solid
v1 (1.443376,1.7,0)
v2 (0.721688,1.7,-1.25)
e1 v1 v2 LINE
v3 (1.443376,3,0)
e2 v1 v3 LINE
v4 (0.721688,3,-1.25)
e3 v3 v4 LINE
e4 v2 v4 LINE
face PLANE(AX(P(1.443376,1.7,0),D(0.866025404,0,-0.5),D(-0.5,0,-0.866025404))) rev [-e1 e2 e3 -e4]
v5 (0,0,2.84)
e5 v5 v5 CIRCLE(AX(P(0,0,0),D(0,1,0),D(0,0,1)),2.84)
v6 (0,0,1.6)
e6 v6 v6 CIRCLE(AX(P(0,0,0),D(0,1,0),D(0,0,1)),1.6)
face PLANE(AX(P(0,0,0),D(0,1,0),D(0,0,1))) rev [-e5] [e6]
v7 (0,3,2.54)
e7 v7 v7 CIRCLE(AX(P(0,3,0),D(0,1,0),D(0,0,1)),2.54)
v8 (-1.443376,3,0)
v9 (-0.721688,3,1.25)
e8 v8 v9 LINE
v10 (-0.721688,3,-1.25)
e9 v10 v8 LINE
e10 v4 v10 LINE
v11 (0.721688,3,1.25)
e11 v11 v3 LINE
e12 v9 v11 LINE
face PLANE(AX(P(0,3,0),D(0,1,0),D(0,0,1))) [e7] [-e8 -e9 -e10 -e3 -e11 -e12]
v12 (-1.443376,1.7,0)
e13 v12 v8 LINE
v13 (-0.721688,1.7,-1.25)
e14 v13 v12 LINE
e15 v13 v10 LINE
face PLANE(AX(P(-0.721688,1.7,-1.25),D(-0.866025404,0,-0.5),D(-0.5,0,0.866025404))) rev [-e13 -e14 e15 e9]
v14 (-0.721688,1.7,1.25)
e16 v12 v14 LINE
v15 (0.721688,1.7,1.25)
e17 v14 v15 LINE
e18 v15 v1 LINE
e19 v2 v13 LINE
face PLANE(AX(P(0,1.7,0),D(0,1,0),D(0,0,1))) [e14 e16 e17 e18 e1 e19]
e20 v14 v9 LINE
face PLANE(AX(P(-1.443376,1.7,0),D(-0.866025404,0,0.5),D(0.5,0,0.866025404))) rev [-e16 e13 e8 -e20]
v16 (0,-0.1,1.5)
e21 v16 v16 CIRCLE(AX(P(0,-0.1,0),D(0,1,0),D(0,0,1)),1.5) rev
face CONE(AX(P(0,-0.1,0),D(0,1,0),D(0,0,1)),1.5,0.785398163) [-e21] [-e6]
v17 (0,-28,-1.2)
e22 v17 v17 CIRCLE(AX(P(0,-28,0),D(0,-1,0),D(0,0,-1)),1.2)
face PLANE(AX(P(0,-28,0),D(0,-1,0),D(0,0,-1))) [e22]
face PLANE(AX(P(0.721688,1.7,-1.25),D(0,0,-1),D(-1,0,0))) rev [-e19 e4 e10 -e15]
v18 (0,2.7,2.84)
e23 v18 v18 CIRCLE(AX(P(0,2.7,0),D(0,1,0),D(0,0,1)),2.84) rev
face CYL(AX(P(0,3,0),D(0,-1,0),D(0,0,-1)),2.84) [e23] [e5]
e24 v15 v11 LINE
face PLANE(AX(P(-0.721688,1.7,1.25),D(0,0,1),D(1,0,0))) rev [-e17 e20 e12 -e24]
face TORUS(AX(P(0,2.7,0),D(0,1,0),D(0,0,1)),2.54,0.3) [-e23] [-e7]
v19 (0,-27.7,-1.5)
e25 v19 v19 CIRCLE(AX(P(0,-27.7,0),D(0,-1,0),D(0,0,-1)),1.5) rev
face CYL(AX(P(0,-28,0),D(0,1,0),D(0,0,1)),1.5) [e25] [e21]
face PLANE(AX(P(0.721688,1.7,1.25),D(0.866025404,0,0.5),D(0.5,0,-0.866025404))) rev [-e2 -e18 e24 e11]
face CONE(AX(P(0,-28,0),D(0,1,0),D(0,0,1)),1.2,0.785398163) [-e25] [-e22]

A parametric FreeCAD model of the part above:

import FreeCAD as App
import Part
import Sketcher
Q = App.Units.Quantity


def edges_at(feature, points):
    """Names of the edges that pass closest to the given points."""
    edges = feature.Shape.Edges
    near = lambda p: min(range(len(edges)), key=lambda i: edges[i].distToShape(Part.Vertex(*p))[0])
    return sorted({f"Edge{near(p) + 1}" for p in points})


def add_polygon(sketch, points):
    """Adds a closed chain of lines whose ends are joined by coincident constraints."""
    first, n = sketch.GeometryCount, len(points)
    for a, b in zip(points, points[1:] + points[:1]):
        sketch.addGeometry(Part.LineSegment(App.Vector(*a, 0), App.Vector(*b, 0)), False)
    for i in range(n):
        sketch.addConstraint(Sketcher.Constraint("Coincident", first + i, 2, first + (i + 1) % n, 1))

doc = App.newDocument("Part")
params = doc.addObject("Spreadsheet::Sheet", "Params")
for row, (alias, value) in enumerate([
    ("sketch1_diameter", "5.68 mm"),
    ("pad1_length", "3 mm"),
    ("pocket1_length", "1.3 mm"),
    ("sketch3_diameter", "3 mm"),
    ("pad2_length", "28 mm"),
    ("chamfer_size", "0.3 mm"),
    ("fillet_radius", "0.3 mm"),
    ("chamfer2_size", "0.1 mm"),
], start=1):
    params.set(f"A{row}", alias)
    params.set(f"B{row}", "=" + value)
    params.setAlias(f"B{row}", alias)

body = doc.addObject("PartDesign::Body", "Body")

# Sketch on XZ plane
sketch1 = body.newObject("Sketcher::SketchObject", "Sketch")
sketch1.AttachmentSupport = (doc.getObject("XZ_Plane"), [""])
sketch1.MapMode = "FlatFace"
sketch1.addGeometry(Part.Circle(App.Vector(0, 0, 0), App.Vector(0, 0, 1), 2.8), False)
sketch1.addConstraint([
    Sketcher.Constraint("Coincident", 0, 3, -1, 1),
    Sketcher.Constraint("Diameter", 0, 5.68),
])
sketch1.setExpression("Constraints[1]", "Params.sketch1_diameter")
pad1 = body.newObject("PartDesign::Pad", "Pad")
pad1.Profile = sketch1
pad1.setExpression("Length", "Params.pad1_length")
pad1.Reversed = True

# Sketch on XZ plane
sketch2 = body.newObject("Sketcher::SketchObject", "Sketch001")
sketch2.AttachmentSupport = (doc.getObject("XZ_Plane"), [""])
sketch2.MapMode = "FlatFace"
sketch2.AttachmentOffset = App.Placement(App.Vector(0, 0, -3), App.Rotation())
add_polygon(sketch2, [(1.4, 0), (0.7, -1.2), (-0.7, -1.2), (-1.4, 0), (-0.7, 1.2), (0.7, 1.2)])  # lines 0-5
sketch2.addConstraint([
    Sketcher.Constraint("Horizontal", 1),
    Sketcher.Constraint("Horizontal", 4),
    Sketcher.Constraint("Symmetric", 0, 2, 3, 2, -1, 1),
    Sketcher.Constraint("Symmetric", 2, 2, 5, 2, -1, 1),
    Sketcher.Constraint("PointOnObject", 2, 2, -1),
    Sketcher.Constraint("Parallel", 2, 5),
    Sketcher.Constraint("Vertical", 1, 2, 3, 2),
    Sketcher.Constraint("Angle", 0, Q("-120 deg")),
    Sketcher.Constraint("DistanceY", 1, 2, 3, 2, 2.5),
    Sketcher.Constraint("DistanceX", 1, 2, 1, 1, 1.443376),
])
pocket1 = body.newObject("PartDesign::Pocket", "Pocket")
pocket1.Profile = sketch2
pocket1.setExpression("Length", "Params.pocket1_length")
pocket1.Reversed = True

# Sketch on XZ plane
sketch3 = body.newObject("Sketcher::SketchObject", "Sketch002")
sketch3.AttachmentSupport = (doc.getObject("XZ_Plane"), [""])
sketch3.MapMode = "FlatFace"
sketch3.addGeometry(Part.Circle(App.Vector(0, 0, 0), App.Vector(0, 0, 1), 1.5), False)
sketch3.addConstraint([
    Sketcher.Constraint("Coincident", 0, 3, -1, 1),
    Sketcher.Constraint("Diameter", 0, 3.0),
])
sketch3.setExpression("Constraints[1]", "Params.sketch3_diameter")
pad2 = body.newObject("PartDesign::Pad", "Pad001")
pad2.Profile = sketch3
pad2.setExpression("Length", "Params.pad2_length")
doc.recompute()

chamfer = body.newObject("PartDesign::Chamfer", "Chamfer")
chamfer.Base = (pad2, edges_at(pad2, [(-1.5, -28, 0)]))
chamfer.setExpression("Size", "Params.chamfer_size")
doc.recompute()

fillet = body.newObject("PartDesign::Fillet", "Fillet")
fillet.Base = (chamfer, edges_at(chamfer, [(-2.84, 3, 0)]))
fillet.setExpression("Radius", "Params.fillet_radius")
doc.recompute()

chamfer2 = body.newObject("PartDesign::Chamfer", "Chamfer001")
chamfer2.Base = (fillet, edges_at(fillet, [(-1.5, 0, 0)]))
chamfer2.setExpression("Size", "Params.chamfer2_size")

doc.recompute()
